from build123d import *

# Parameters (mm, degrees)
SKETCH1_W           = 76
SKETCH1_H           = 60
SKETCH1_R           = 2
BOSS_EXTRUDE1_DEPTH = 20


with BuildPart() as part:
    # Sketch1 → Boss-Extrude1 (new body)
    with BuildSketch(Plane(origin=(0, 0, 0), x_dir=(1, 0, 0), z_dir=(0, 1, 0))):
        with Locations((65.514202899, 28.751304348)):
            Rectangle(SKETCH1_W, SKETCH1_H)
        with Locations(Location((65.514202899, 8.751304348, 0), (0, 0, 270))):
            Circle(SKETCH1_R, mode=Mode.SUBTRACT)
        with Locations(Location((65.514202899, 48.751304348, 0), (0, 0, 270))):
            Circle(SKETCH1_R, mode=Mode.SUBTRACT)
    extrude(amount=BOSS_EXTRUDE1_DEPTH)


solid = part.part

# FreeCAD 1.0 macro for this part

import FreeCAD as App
import Part
import Sketcher
from FreeCAD import Vector

doc = App.newDocument("Part")
body = doc.addObject("PartDesign::Body", "Body")

# Sketch on XZ plane
sketch1 = body.newObject("Sketcher::SketchObject", "Sketch")
sketch1.AttachmentSupport = (doc.getObject("XZ_Plane"), [""])
sketch1.MapMode = "FlatFace"
sketch1.addGeometry(Part.LineSegment(Vector(27.5, -58.8, 0), Vector(27.5, 1.2, 0)), False)
sketch1.addGeometry(Part.LineSegment(Vector(27.5, 1.2, 0), Vector(103.5, 1.2, 0)), False)
sketch1.addGeometry(Part.LineSegment(Vector(103.5, 1.2, 0), Vector(103.5, -58.8, 0)), False)
sketch1.addGeometry(Part.LineSegment(Vector(103.5, -58.8, 0), Vector(27.5, -58.8, 0)), False)
sketch1.addGeometry(Part.Circle(Vector(65.5, -8.8, 0), Vector(0, 0, 1), 2), False)
sketch1.addGeometry(Part.Circle(Vector(65.5, -48.8, 0), Vector(0, 0, 1), 2), False)
sketch1.addConstraint(Sketcher.Constraint("Coincident", 0, 2, 1, 1))
sketch1.addConstraint(Sketcher.Constraint("Coincident", 1, 2, 2, 1))
sketch1.addConstraint(Sketcher.Constraint("Coincident", 2, 2, 3, 1))
sketch1.addConstraint(Sketcher.Constraint("Coincident", 3, 2, 0, 1))
sketch1.addConstraint(Sketcher.Constraint("Vertical", 0))
sketch1.addConstraint(Sketcher.Constraint("Horizontal", 1))
sketch1.addConstraint(Sketcher.Constraint("Vertical", 2))
sketch1.addConstraint(Sketcher.Constraint("Horizontal", 3))
sketch1.addConstraint(Sketcher.Constraint("Equal", 4, 5))
sketch1.addConstraint(Sketcher.Constraint("Vertical", 4, 3, 5, 3))
sketch1.addConstraint(Sketcher.Constraint("Diameter", 4, 4.0))
sketch1.addConstraint(Sketcher.Constraint("DistanceX", 1, 1, 1, 2, 76.0))
sketch1.addConstraint(Sketcher.Constraint("DistanceY", 0, 1, 0, 2, 60.0))
sketch1.addConstraint(Sketcher.Constraint("DistanceY", 5, 3, 4, 3, 40.0))
sketch1.addConstraint(Sketcher.Constraint("DistanceX", 0, 2, 4, 3, 38.0))
sketch1.addConstraint(Sketcher.Constraint("DistanceY", 4, 3, 0, 2, 10.0))
sketch1.addConstraint(Sketcher.Constraint("DistanceX", -1, 1, 4, 3, 65.514203))
sketch1.addConstraint(Sketcher.Constraint("DistanceY", 4, 3, -1, 1, 8.751304))
pad1 = body.newObject("PartDesign::Pad", "Pad")
pad1.Profile = sketch1
pad1.Length = 20
pad1.Reversed = True

doc.recompute()
